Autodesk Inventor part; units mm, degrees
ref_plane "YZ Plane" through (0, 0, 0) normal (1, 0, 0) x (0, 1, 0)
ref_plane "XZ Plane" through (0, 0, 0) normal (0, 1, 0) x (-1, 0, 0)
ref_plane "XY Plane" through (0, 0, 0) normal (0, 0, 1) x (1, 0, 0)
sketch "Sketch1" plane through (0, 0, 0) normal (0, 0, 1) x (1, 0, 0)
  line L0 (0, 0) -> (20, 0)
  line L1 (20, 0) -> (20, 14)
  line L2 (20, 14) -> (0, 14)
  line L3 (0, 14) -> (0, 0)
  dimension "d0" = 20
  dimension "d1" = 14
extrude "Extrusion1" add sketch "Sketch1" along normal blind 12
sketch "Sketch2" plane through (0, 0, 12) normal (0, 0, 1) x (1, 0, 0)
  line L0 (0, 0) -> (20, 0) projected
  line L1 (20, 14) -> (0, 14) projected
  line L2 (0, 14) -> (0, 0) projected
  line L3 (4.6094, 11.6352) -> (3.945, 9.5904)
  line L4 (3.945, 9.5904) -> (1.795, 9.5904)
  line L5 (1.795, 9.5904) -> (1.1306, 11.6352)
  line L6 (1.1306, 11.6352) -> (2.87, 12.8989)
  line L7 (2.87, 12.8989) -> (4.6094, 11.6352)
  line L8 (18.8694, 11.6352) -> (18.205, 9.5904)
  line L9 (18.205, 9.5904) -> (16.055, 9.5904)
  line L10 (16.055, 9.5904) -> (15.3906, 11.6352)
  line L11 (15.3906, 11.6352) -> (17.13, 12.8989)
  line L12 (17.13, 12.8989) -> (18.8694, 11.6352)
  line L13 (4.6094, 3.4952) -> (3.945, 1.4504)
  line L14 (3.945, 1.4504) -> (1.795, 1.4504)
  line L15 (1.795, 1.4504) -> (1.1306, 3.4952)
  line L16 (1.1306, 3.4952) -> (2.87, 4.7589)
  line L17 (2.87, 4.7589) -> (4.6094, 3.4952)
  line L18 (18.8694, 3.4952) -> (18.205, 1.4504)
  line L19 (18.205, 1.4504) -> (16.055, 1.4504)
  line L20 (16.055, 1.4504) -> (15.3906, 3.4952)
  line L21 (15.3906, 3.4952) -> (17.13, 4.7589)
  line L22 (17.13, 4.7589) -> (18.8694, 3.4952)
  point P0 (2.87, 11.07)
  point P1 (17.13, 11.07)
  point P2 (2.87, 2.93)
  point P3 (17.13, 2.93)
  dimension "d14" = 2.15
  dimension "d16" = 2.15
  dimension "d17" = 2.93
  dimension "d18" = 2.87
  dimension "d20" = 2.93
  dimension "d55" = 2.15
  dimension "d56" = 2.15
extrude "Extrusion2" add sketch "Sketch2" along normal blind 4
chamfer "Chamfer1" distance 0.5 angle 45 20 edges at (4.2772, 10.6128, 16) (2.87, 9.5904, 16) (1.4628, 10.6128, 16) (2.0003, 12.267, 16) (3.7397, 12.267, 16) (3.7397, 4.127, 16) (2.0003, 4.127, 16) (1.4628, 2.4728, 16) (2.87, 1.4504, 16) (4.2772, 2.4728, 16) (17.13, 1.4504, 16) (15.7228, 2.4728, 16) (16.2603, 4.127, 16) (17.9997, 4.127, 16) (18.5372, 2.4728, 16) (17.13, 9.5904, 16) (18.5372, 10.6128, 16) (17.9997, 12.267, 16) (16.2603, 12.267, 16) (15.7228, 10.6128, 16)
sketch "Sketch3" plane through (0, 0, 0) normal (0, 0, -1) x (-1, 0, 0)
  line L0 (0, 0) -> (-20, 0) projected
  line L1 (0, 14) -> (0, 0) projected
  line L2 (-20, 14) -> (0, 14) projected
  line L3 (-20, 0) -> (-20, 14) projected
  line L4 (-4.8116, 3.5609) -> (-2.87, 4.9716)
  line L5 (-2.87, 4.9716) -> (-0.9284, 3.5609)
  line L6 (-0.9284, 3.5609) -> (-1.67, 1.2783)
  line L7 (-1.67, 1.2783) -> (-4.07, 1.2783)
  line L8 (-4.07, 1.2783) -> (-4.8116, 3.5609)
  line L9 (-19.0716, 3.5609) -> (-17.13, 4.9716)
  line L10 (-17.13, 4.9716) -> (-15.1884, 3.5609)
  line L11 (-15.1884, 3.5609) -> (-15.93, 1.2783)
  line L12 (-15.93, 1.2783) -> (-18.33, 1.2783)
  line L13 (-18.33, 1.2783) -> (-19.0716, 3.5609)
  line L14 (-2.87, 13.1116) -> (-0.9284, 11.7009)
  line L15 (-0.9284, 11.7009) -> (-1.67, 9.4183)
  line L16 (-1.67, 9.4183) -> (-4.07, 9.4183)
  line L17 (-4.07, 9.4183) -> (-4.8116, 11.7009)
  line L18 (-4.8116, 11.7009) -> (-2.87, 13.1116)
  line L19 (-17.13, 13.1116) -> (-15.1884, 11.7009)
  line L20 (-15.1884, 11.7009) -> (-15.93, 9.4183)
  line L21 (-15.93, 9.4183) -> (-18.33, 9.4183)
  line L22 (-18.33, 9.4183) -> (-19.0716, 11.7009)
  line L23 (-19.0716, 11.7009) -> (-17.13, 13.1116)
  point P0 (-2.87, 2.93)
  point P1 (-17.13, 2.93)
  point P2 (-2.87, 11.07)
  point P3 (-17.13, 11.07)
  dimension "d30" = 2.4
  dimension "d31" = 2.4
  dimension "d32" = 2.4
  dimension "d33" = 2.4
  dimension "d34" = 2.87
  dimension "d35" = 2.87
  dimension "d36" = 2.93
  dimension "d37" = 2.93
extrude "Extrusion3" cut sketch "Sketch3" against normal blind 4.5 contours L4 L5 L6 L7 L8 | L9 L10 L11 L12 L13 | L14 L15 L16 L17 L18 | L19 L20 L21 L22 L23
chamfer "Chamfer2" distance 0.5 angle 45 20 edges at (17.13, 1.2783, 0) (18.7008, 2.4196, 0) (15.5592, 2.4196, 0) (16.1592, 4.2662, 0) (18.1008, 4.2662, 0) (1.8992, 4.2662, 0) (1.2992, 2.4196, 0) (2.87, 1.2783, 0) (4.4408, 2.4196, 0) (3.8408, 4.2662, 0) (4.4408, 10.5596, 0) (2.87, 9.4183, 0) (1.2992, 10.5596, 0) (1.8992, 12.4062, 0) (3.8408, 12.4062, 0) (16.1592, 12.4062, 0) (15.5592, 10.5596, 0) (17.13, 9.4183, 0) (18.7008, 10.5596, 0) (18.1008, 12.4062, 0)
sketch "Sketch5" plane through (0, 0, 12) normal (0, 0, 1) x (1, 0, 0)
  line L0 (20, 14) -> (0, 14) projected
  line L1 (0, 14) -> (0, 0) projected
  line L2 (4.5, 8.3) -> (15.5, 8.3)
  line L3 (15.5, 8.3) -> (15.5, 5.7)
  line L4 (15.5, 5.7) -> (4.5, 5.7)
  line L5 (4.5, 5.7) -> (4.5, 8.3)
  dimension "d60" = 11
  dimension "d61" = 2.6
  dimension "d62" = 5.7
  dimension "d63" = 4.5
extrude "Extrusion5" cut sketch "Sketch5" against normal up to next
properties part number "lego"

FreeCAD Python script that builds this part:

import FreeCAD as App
import Part
import Sketcher
Q = App.Units.Quantity


def edges_at(feature, points):
    """Names of the edges that pass closest to the given points."""
    edges = feature.Shape.Edges
    near = lambda p: min(range(len(edges)), key=lambda i: edges[i].distToShape(Part.Vertex(*p))[0])
    return sorted({f"Edge{near(p) + 1}" for p in points})

doc = App.newDocument("Part")
body = doc.addObject("PartDesign::Body", "Body")

sketch1 = body.newObject("Sketcher::SketchObject", "Sketch")
sketch1.AttachmentSupport = (doc.getObject("XY_Plane"), [""])
sketch1.MapMode = "FlatFace"
sketch1.addGeometry([
    Part.LineSegment(App.Vector(0, 14, 0), App.Vector(0, 0, 0)),
    Part.LineSegment(App.Vector(0, 0, 0), App.Vector(20, 0, 0)),
    Part.LineSegment(App.Vector(20, 0, 0), App.Vector(20, 14, 0)),
    Part.LineSegment(App.Vector(20, 14, 0), App.Vector(0, 14, 0)),
], False)
sketch1.addConstraint([
    Sketcher.Constraint("Coincident", 0, 2, 1, 1),
    Sketcher.Constraint("Coincident", 1, 2, 2, 1),
    Sketcher.Constraint("Coincident", 2, 2, 3, 1),
    Sketcher.Constraint("Coincident", 3, 2, 0, 1),
    Sketcher.Constraint("Vertical", 0),
    Sketcher.Constraint("Horizontal", 1),
    Sketcher.Constraint("Vertical", 2),
    Sketcher.Constraint("Horizontal", 3),
    Sketcher.Constraint("Coincident", 0, 2, -1, 1),
    Sketcher.Constraint("DistanceX", 1, 1, 1, 2, Q("20 mm")),
    Sketcher.Constraint("DistanceY", 0, 2, 0, 1, Q("14 mm")),
])
pad1 = body.newObject("PartDesign::Pad", "Pad")
pad1.Profile = sketch1
pad1.Length = 12

sketch2 = body.newObject("Sketcher::SketchObject", "Sketch001")
sketch2.AttachmentSupport = (doc.getObject("XY_Plane"), [""])
sketch2.MapMode = "FlatFace"
sketch2.AttachmentOffset = App.Placement(App.Vector(0, 0, 12), App.Rotation())
sketch2.addGeometry([
    Part.LineSegment(App.Vector(3.945, 9.5904, 0), App.Vector(4.6094, 11.6352, 0)),
    Part.LineSegment(App.Vector(4.6094, 11.6352, 0), App.Vector(2.87, 12.8989, 0)),
    Part.LineSegment(App.Vector(2.87, 12.8989, 0), App.Vector(1.1306, 11.6352, 0)),
    Part.LineSegment(App.Vector(1.1306, 11.6352, 0), App.Vector(1.795, 9.5904, 0)),
    Part.LineSegment(App.Vector(1.795, 9.5904, 0), App.Vector(3.945, 9.5904, 0)),
    Part.LineSegment(App.Vector(18.205, 9.5904, 0), App.Vector(18.8694, 11.6352, 0)),
    Part.LineSegment(App.Vector(18.8694, 11.6352, 0), App.Vector(17.13, 12.8989, 0)),
    Part.LineSegment(App.Vector(17.13, 12.8989, 0), App.Vector(15.3906, 11.6352, 0)),
    Part.LineSegment(App.Vector(15.3906, 11.6352, 0), App.Vector(16.055, 9.5904, 0)),
    Part.LineSegment(App.Vector(16.055, 9.5904, 0), App.Vector(18.205, 9.5904, 0)),
    Part.LineSegment(App.Vector(3.945, 1.4504, 0), App.Vector(4.6094, 3.4952, 0)),
    Part.LineSegment(App.Vector(4.6094, 3.4952, 0), App.Vector(2.87, 4.7589, 0)),
    Part.LineSegment(App.Vector(2.87, 4.7589, 0), App.Vector(1.1306, 3.4952, 0)),
    Part.LineSegment(App.Vector(1.1306, 3.4952, 0), App.Vector(1.795, 1.4504, 0)),
    Part.LineSegment(App.Vector(1.795, 1.4504, 0), App.Vector(3.945, 1.4504, 0)),
    Part.LineSegment(App.Vector(18.205, 1.4504, 0), App.Vector(18.8694, 3.4952, 0)),
    Part.LineSegment(App.Vector(18.8694, 3.4952, 0), App.Vector(17.13, 4.7589, 0)),
    Part.LineSegment(App.Vector(17.13, 4.7589, 0), App.Vector(15.3906, 3.4952, 0)),
    Part.LineSegment(App.Vector(15.3906, 3.4952, 0), App.Vector(16.055, 1.4504, 0)),
    Part.LineSegment(App.Vector(16.055, 1.4504, 0), App.Vector(18.205, 1.4504, 0)),
], False)
sketch2.addConstraint([
    Sketcher.Constraint("Coincident", 0, 2, 1, 1),
    Sketcher.Constraint("Coincident", 1, 2, 2, 1),
    Sketcher.Constraint("Coincident", 2, 2, 3, 1),
    Sketcher.Constraint("Coincident", 3, 2, 4, 1),
    Sketcher.Constraint("Coincident", 4, 2, 0, 1),
    Sketcher.Constraint("Coincident", 5, 2, 6, 1),
    Sketcher.Constraint("Coincident", 6, 2, 7, 1),
    Sketcher.Constraint("Coincident", 7, 2, 8, 1),
    Sketcher.Constraint("Coincident", 8, 2, 9, 1),
    Sketcher.Constraint("Coincident", 9, 2, 5, 1),
    Sketcher.Constraint("Coincident", 10, 2, 11, 1),
    Sketcher.Constraint("Coincident", 11, 2, 12, 1),
    Sketcher.Constraint("Coincident", 12, 2, 13, 1),
    Sketcher.Constraint("Coincident", 13, 2, 14, 1),
    Sketcher.Constraint("Coincident", 14, 2, 10, 1),
    Sketcher.Constraint("Coincident", 15, 2, 16, 1),
    Sketcher.Constraint("Coincident", 16, 2, 17, 1),
    Sketcher.Constraint("Coincident", 17, 2, 18, 1),
    Sketcher.Constraint("Coincident", 18, 2, 19, 1),
    Sketcher.Constraint("Coincident", 19, 2, 15, 1),
    Sketcher.Constraint("Horizontal", 4),
    Sketcher.Constraint("Horizontal", 9),
    Sketcher.Constraint("Horizontal", 14),
    Sketcher.Constraint("Horizontal", 19),
    Sketcher.Constraint("Parallel", 0, 5),
    Sketcher.Constraint("Parallel", 1, 6),
    Sketcher.Constraint("Parallel", 2, 7),
    Sketcher.Constraint("Parallel", 3, 8),
    Sketcher.Constraint("Parallel", 5, 10),
    Sketcher.Constraint("Parallel", 6, 11),
    Sketcher.Constraint("Parallel", 7, 12),
    Sketcher.Constraint("Parallel", 8, 13),
    Sketcher.Constraint("Parallel", 10, 15),
    Sketcher.Constraint("Parallel", 11, 16),
    Sketcher.Constraint("Parallel", 12, 17),
    Sketcher.Constraint("Parallel", 13, 18),
    Sketcher.Constraint("Horizontal", 0, 2, 2, 2),
    Sketcher.Constraint("Horizontal", 2, 2, 5, 2),
    Sketcher.Constraint("Horizontal", 1, 2, 6, 2),
    Sketcher.Constraint("Horizontal", 5, 2, 7, 2),
    Sketcher.Constraint("Horizontal", 4, 2, 8, 2),
    Sketcher.Constraint("Horizontal", 10, 2, 12, 2),
    Sketcher.Constraint("Horizontal", 12, 2, 15, 2),
    Sketcher.Constraint("Horizontal", 11, 2, 16, 2),
    Sketcher.Constraint("Horizontal", 15, 2, 17, 2),
    Sketcher.Constraint("Horizontal", 14, 2, 18, 2),
    Sketcher.Constraint("Vertical", 0, 2, 10, 2),
    Sketcher.Constraint("Vertical", 1, 2, 11, 2),
    Sketcher.Constraint("Vertical", 3, 2, 13, 2),
    Sketcher.Constraint("Vertical", 5, 2, 15, 2),
    Sketcher.Constraint("Equal", 0, 1),
    Sketcher.Constraint("Equal", 1, 2),
    Sketcher.Constraint("Equal", 2, 3),
    Sketcher.Constraint("DistanceX", 4, 1, 4, 2, Q("2.15 mm")),
    Sketcher.Constraint("Distance", 0, Q("2.15 mm")),
    Sketcher.Constraint("DistanceX", -1, 1, 1, 2, Q("2.87 mm")),
    Sketcher.Constraint("Angle", 0, Q("72 deg")),
    Sketcher.Constraint("DistanceX", -1, 1, 6, 2, Q("17.13 mm")),
    Sketcher.Constraint("DistanceY", 10, 2, 0, 2, Q("8.14 mm")),
    Sketcher.Constraint("DistanceY", -1, 1, 1, 2, Q("12.899 mm")),
])
pad2 = body.newObject("PartDesign::Pad", "Pad001")
pad2.Profile = sketch2
pad2.Length = 4
doc.recompute()

chamfer = body.newObject("PartDesign::Chamfer", "Chamfer")
chamfer.Base = (pad2, edges_at(pad2, [
    (4.277, 10.613, 16),
    (2.87, 9.59, 16),
    (1.463, 10.613, 16),
    (2, 12.267, 16),
    (3.74, 12.267, 16),
    (3.74, 4.127, 16),
    (2, 4.127, 16),
    (1.463, 2.473, 16),
    (2.87, 1.45, 16),
    (4.277, 2.473, 16),
    (17.13, 1.45, 16),
    (15.723, 2.473, 16),
    (16.26, 4.127, 16),
    (18, 4.127, 16),
    (18.537, 2.473, 16),
    (17.13, 9.59, 16),
    (18.537, 10.613, 16),
    (18, 12.267, 16),
    (16.26, 12.267, 16),
    (15.723, 10.613, 16),
]))
chamfer.Size = 0.5

sketch3 = body.newObject("Sketcher::SketchObject", "Sketch002")
sketch3.AttachmentSupport = (doc.getObject("XY_Plane"), [""])
sketch3.MapMode = "FlatFace"
sketch3.addGeometry([
    Part.LineSegment(App.Vector(2.87, 4.9716, 0), App.Vector(4.8116, 3.5609, 0)),
    Part.LineSegment(App.Vector(4.8116, 3.5609, 0), App.Vector(4.07, 1.2783, 0)),
    Part.LineSegment(App.Vector(4.07, 1.2783, 0), App.Vector(1.67, 1.2783, 0)),
    Part.LineSegment(App.Vector(1.67, 1.2783, 0), App.Vector(0.9284, 3.5609, 0)),
    Part.LineSegment(App.Vector(0.9284, 3.5609, 0), App.Vector(2.87, 4.9716, 0)),
    Part.LineSegment(App.Vector(17.13, 4.9716, 0), App.Vector(19.0716, 3.5609, 0)),
    Part.LineSegment(App.Vector(19.0716, 3.5609, 0), App.Vector(18.33, 1.2783, 0)),
    Part.LineSegment(App.Vector(18.33, 1.2783, 0), App.Vector(15.93, 1.2783, 0)),
    Part.LineSegment(App.Vector(15.93, 1.2783, 0), App.Vector(15.1884, 3.5609, 0)),
    Part.LineSegment(App.Vector(15.1884, 3.5609, 0), App.Vector(17.13, 4.9716, 0)),
    Part.LineSegment(App.Vector(0.9284, 11.7009, 0), App.Vector(2.87, 13.1116, 0)),
    Part.LineSegment(App.Vector(2.87, 13.1116, 0), App.Vector(4.8116, 11.7009, 0)),
    Part.LineSegment(App.Vector(4.8116, 11.7009, 0), App.Vector(4.07, 9.4183, 0)),
    Part.LineSegment(App.Vector(4.07, 9.4183, 0), App.Vector(1.67, 9.4183, 0)),
    Part.LineSegment(App.Vector(1.67, 9.4183, 0), App.Vector(0.9284, 11.7009, 0)),
    Part.LineSegment(App.Vector(15.1884, 11.7009, 0), App.Vector(17.13, 13.1116, 0)),
    Part.LineSegment(App.Vector(17.13, 13.1116, 0), App.Vector(19.0716, 11.7009, 0)),
    Part.LineSegment(App.Vector(19.0716, 11.7009, 0), App.Vector(18.33, 9.4183, 0)),
    Part.LineSegment(App.Vector(18.33, 9.4183, 0), App.Vector(15.93, 9.4183, 0)),
    Part.LineSegment(App.Vector(15.93, 9.4183, 0), App.Vector(15.1884, 11.7009, 0)),
], False)
sketch3.addConstraint([
    Sketcher.Constraint("Coincident", 0, 2, 1, 1),
    Sketcher.Constraint("Coincident", 1, 2, 2, 1),
    Sketcher.Constraint("Coincident", 2, 2, 3, 1),
    Sketcher.Constraint("Coincident", 3, 2, 4, 1),
    Sketcher.Constraint("Coincident", 4, 2, 0, 1),
    Sketcher.Constraint("Coincident", 5, 2, 6, 1),
    Sketcher.Constraint("Coincident", 6, 2, 7, 1),
    Sketcher.Constraint("Coincident", 7, 2, 8, 1),
    Sketcher.Constraint("Coincident", 8, 2, 9, 1),
    Sketcher.Constraint("Coincident", 9, 2, 5, 1),
    Sketcher.Constraint("Coincident", 10, 2, 11, 1),
    Sketcher.Constraint("Coincident", 11, 2, 12, 1),
    Sketcher.Constraint("Coincident", 12, 2, 13, 1),
    Sketcher.Constraint("Coincident", 13, 2, 14, 1),
    Sketcher.Constraint("Coincident", 14, 2, 10, 1),
    Sketcher.Constraint("Coincident", 15, 2, 16, 1),
    Sketcher.Constraint("Coincident", 16, 2, 17, 1),
    Sketcher.Constraint("Coincident", 17, 2, 18, 1),
    Sketcher.Constraint("Coincident", 18, 2, 19, 1),
    Sketcher.Constraint("Coincident", 19, 2, 15, 1),
    Sketcher.Constraint("Horizontal", 2),
    Sketcher.Constraint("Horizontal", 7),
    Sketcher.Constraint("Horizontal", 13),
    Sketcher.Constraint("Horizontal", 18),
    Sketcher.Constraint("Parallel", 0, 5),
    Sketcher.Constraint("Parallel", 1, 6),
    Sketcher.Constraint("Parallel", 3, 8),
    Sketcher.Constraint("Parallel", 4, 9),
    Sketcher.Constraint("Parallel", 9, 10),
    Sketcher.Constraint("Parallel", 5, 11),
    Sketcher.Constraint("Parallel", 6, 12),
    Sketcher.Constraint("Parallel", 8, 14),
    Sketcher.Constraint("Parallel", 10, 15),
    Sketcher.Constraint("Parallel", 11, 16),
    Sketcher.Constraint("Parallel", 12, 17),
    Sketcher.Constraint("Parallel", 14, 19),
    Sketcher.Constraint("Horizontal", 0, 2, 3, 2),
    Sketcher.Constraint("Horizontal", 3, 2, 5, 2),
    Sketcher.Constraint("Horizontal", 2, 2, 6, 2),
    Sketcher.Constraint("Horizontal", 5, 2, 8, 2),
    Sketcher.Constraint("Horizontal", 4, 2, 9, 2),
    Sketcher.Constraint("Horizontal", 11, 2, 14, 2),
    Sketcher.Constraint("Horizontal", 10, 2, 15, 2),
    Sketcher.Constraint("Horizontal", 14, 2, 16, 2),
    Sketcher.Constraint("Horizontal", 13, 2, 17, 2),
    Sketcher.Constraint("Horizontal", 16, 2, 19, 2),
    Sketcher.Constraint("Vertical", 4, 2, 10, 2),
    Sketcher.Constraint("Vertical", 0, 2, 11, 2),
    Sketcher.Constraint("Vertical", 1, 2, 12, 2),
    Sketcher.Constraint("Vertical", 9, 2, 15, 2),
    Sketcher.Constraint("Equal", 0, 1),
    Sketcher.Constraint("Equal", 1, 3),
    Sketcher.Constraint("Equal", 3, 4),
    Sketcher.Constraint("DistanceX", 2, 2, 2, 1, Q("2.4 mm")),
    Sketcher.Constraint("Distance", 0, Q("2.4 mm")),
    Sketcher.Constraint("DistanceX", -1, 1, 4, 2, Q("2.87 mm")),
    Sketcher.Constraint("Angle", 0, Q("-36.0009 deg")),
    Sketcher.Constraint("DistanceX", -1, 1, 6, 2, Q("18.33 mm")),
    Sketcher.Constraint("DistanceY", 4, 2, 10, 2, Q("8.14 mm")),
    Sketcher.Constraint("DistanceY", -1, 1, 0, 2, Q("3.561 mm")),
])
pocket1 = body.newObject("PartDesign::Pocket", "Pocket")
pocket1.Profile = sketch3
pocket1.Length = 4.5
pocket1.Reversed = True
doc.recompute()

chamfer2 = body.newObject("PartDesign::Chamfer", "Chamfer001")
chamfer2.Base = (pocket1, edges_at(pocket1, [
    (17.13, 1.278, 0),
    (18.701, 2.42, 0),
    (15.559, 2.42, 0),
    (16.159, 4.266, 0),
    (18.101, 4.266, 0),
    (1.899, 4.266, 0),
    (1.299, 2.42, 0),
    (2.87, 1.278, 0),
    (4.441, 2.42, 0),
    (3.841, 4.266, 0),
    (4.441, 10.56, 0),
    (2.87, 9.418, 0),
    (1.299, 10.56, 0),
    (1.899, 12.406, 0),
    (3.841, 12.406, 0),
    (16.159, 12.406, 0),
    (15.559, 10.56, 0),
    (17.13, 9.418, 0),
    (18.701, 10.56, 0),
    (18.101, 12.406, 0),
]))
chamfer2.Size = 0.5

sketch4 = body.newObject("Sketcher::SketchObject", "Sketch003")
sketch4.AttachmentSupport = (doc.getObject("XY_Plane"), [""])
sketch4.MapMode = "FlatFace"
sketch4.AttachmentOffset = App.Placement(App.Vector(0, 0, 12), App.Rotation())
sketch4.addGeometry([
    Part.LineSegment(App.Vector(15.5, 8.3, 0), App.Vector(4.5, 8.3, 0)),
    Part.LineSegment(App.Vector(4.5, 8.3, 0), App.Vector(4.5, 5.7, 0)),
    Part.LineSegment(App.Vector(4.5, 5.7, 0), App.Vector(15.5, 5.7, 0)),
    Part.LineSegment(App.Vector(15.5, 5.7, 0), App.Vector(15.5, 8.3, 0)),
], False)
sketch4.addConstraint([
    Sketcher.Constraint("Coincident", 0, 2, 1, 1),
    Sketcher.Constraint("Coincident", 1, 2, 2, 1),
    Sketcher.Constraint("Coincident", 2, 2, 3, 1),
    Sketcher.Constraint("Coincident", 3, 2, 0, 1),
    Sketcher.Constraint("Horizontal", 0),
    Sketcher.Constraint("Vertical", 1),
    Sketcher.Constraint("Horizontal", 2),
    Sketcher.Constraint("Vertical", 3),
    Sketcher.Constraint("DistanceX", 0, 2, 0, 1, Q("11 mm")),
    Sketcher.Constraint("DistanceY", 1, 2, 1, 1, Q("2.6 mm")),
    Sketcher.Constraint("DistanceX", -1, 1, 0, 2, Q("4.5 mm")),
    Sketcher.Constraint("DistanceY", -1, 1, 1, 2, Q("5.7 mm")),
])
pocket2 = body.newObject("PartDesign::Pocket", "Pocket001")
pocket2.Profile = sketch4
pocket2.Type = "UpToFirst"

doc.recompute()
